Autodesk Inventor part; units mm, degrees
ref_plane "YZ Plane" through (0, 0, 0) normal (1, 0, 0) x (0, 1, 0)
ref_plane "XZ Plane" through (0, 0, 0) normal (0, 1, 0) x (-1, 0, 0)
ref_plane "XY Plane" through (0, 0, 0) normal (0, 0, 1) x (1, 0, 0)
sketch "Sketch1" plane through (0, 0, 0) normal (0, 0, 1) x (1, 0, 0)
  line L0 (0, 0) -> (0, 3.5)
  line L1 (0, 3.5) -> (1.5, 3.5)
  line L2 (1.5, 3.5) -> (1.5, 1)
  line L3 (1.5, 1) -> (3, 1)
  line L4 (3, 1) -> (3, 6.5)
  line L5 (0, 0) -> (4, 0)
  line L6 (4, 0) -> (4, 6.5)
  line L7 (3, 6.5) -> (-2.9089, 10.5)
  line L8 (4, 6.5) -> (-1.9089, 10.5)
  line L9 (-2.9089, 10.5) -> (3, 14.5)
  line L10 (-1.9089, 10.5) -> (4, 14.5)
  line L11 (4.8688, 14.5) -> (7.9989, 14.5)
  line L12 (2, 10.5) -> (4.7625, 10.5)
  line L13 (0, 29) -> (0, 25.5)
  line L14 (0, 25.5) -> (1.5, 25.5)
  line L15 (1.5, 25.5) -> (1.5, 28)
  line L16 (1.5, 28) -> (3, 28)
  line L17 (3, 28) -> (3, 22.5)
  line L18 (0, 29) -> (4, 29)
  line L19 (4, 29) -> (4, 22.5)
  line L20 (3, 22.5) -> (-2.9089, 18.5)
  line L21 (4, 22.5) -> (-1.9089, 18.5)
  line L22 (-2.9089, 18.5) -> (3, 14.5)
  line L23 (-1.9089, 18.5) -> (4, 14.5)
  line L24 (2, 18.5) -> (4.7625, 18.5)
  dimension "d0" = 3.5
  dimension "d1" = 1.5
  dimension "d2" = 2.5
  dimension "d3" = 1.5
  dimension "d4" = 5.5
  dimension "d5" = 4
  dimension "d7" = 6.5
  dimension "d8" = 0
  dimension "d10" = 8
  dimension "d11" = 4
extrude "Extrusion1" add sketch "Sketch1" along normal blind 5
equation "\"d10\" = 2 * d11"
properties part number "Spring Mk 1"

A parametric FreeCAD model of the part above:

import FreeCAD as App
import Part
import Sketcher


def add_polygon(sketch, points):
    """Adds a closed chain of lines whose ends are joined by coincident constraints."""
    first, n = sketch.GeometryCount, len(points)
    for a, b in zip(points, points[1:] + points[:1]):
        sketch.addGeometry(Part.LineSegment(App.Vector(*a, 0), App.Vector(*b, 0)), False)
    for i in range(n):
        sketch.addConstraint(Sketcher.Constraint("Coincident", first + i, 2, first + (i + 1) % n, 1))

doc = App.newDocument("Part")
body = doc.addObject("PartDesign::Body", "Body")

# Sketch on XY plane
sketch1 = doc.addObject("Sketcher::SketchObject", "Sketch")
body.addObject(sketch1)
sketch1.AttachmentSupport = (doc.XY_Plane, [""])
sketch1.MapMode = "FlatFace"
add_polygon(sketch1, [(0, 3.5), (0, 0), (4, 0), (4, 6.5), (-1.9, 10.5), (4, 14.5), (-1.9, 18.5), (4, 22.5), (4, 29), (0, 29), (0, 25.5), (1.5, 25.5), (1.5, 28), (3, 28), (3, 22.5), (-2.9, 18.5), (3, 14.5), (-2.9, 10.5), (3, 6.5), (3, 1), (1.5, 1), (1.5, 3.5)])  # lines 0-21
sketch1.addConstraint(Sketcher.Constraint("Vertical", 0))
sketch1.addConstraint(Sketcher.Constraint("Horizontal", 1))
sketch1.addConstraint(Sketcher.Constraint("Vertical", 2))
sketch1.addConstraint(Sketcher.Constraint("Vertical", 7))
sketch1.addConstraint(Sketcher.Constraint("Horizontal", 8))
sketch1.addConstraint(Sketcher.Constraint("Vertical", 9))
sketch1.addConstraint(Sketcher.Constraint("Horizontal", 10))
sketch1.addConstraint(Sketcher.Constraint("Vertical", 11))
sketch1.addConstraint(Sketcher.Constraint("Horizontal", 12))
sketch1.addConstraint(Sketcher.Constraint("Vertical", 13))
sketch1.addConstraint(Sketcher.Constraint("Vertical", 18))
sketch1.addConstraint(Sketcher.Constraint("Horizontal", 19))
sketch1.addConstraint(Sketcher.Constraint("Vertical", 20))
sketch1.addConstraint(Sketcher.Constraint("Horizontal", 21))
sketch1.addConstraint(Sketcher.Constraint("Coincident", 0, 2, -1, 1))
sketch1.addConstraint(Sketcher.Constraint("PointOnObject", 8, 2, -2))
sketch1.addConstraint(Sketcher.Constraint("Parallel", 3, 5))
sketch1.addConstraint(Sketcher.Constraint("Parallel", 4, 6))
sketch1.addConstraint(Sketcher.Constraint("Parallel", 6, 14))
sketch1.addConstraint(Sketcher.Constraint("Parallel", 5, 15))
sketch1.addConstraint(Sketcher.Constraint("Parallel", 14, 16))
sketch1.addConstraint(Sketcher.Constraint("Parallel", 15, 17))
sketch1.addConstraint(Sketcher.Constraint("Horizontal", 6, 2, 13, 2))
sketch1.addConstraint(Sketcher.Constraint("Horizontal", 5, 2, 14, 2))
sketch1.addConstraint(Sketcher.Constraint("Horizontal", 4, 2, 15, 2))
sketch1.addConstraint(Sketcher.Constraint("Horizontal", 3, 2, 16, 2))
sketch1.addConstraint(Sketcher.Constraint("Horizontal", 2, 2, 17, 2))
sketch1.addConstraint(Sketcher.Constraint("Vertical", 2, 2, 4, 2))
sketch1.addConstraint(Sketcher.Constraint("Vertical", 3, 2, 5, 2))
sketch1.addConstraint(Sketcher.Constraint("Vertical", 4, 2, 6, 2))
sketch1.addConstraint(Sketcher.Constraint("Vertical", 11, 2, 19, 2))
sketch1.addConstraint(Sketcher.Constraint("Equal", 10, 12))
sketch1.addConstraint(Sketcher.Constraint("Equal", 2, 7))
sketch1.addConstraint(Sketcher.Constraint("Equal", 0, 9))
sketch1.addConstraint(Sketcher.Constraint("Equal", 13, 18))
sketch1.addConstraint(Sketcher.Constraint("Equal", 3, 4))
sketch1.addConstraint(Sketcher.Constraint("DistanceX", 1, 1, 1, 2, 4.0))
sketch1.addConstraint(Sketcher.Constraint("DistanceX", 10, 1, 10, 2, 1.5))
sketch1.addConstraint(Sketcher.Constraint("DistanceY", 0, 2, 0, 1, 3.5))
sketch1.addConstraint(Sketcher.Constraint("DistanceY", 2, 1, 2, 2, 6.5))
sketch1.addConstraint(Sketcher.Constraint("DistanceY", 11, 1, 11, 2, 2.5))
sketch1.addConstraint(Sketcher.Constraint("DistanceY", 2, 2, 3, 2, 4.0))
sketch1.addConstraint(Sketcher.Constraint("DistanceX", 3, 2, -1, 1, 1.909))
pad1 = doc.addObject("PartDesign::Pad", "Pad")
body.addObject(pad1)
pad1.Profile = sketch1
pad1.Length = 5

doc.recompute()
